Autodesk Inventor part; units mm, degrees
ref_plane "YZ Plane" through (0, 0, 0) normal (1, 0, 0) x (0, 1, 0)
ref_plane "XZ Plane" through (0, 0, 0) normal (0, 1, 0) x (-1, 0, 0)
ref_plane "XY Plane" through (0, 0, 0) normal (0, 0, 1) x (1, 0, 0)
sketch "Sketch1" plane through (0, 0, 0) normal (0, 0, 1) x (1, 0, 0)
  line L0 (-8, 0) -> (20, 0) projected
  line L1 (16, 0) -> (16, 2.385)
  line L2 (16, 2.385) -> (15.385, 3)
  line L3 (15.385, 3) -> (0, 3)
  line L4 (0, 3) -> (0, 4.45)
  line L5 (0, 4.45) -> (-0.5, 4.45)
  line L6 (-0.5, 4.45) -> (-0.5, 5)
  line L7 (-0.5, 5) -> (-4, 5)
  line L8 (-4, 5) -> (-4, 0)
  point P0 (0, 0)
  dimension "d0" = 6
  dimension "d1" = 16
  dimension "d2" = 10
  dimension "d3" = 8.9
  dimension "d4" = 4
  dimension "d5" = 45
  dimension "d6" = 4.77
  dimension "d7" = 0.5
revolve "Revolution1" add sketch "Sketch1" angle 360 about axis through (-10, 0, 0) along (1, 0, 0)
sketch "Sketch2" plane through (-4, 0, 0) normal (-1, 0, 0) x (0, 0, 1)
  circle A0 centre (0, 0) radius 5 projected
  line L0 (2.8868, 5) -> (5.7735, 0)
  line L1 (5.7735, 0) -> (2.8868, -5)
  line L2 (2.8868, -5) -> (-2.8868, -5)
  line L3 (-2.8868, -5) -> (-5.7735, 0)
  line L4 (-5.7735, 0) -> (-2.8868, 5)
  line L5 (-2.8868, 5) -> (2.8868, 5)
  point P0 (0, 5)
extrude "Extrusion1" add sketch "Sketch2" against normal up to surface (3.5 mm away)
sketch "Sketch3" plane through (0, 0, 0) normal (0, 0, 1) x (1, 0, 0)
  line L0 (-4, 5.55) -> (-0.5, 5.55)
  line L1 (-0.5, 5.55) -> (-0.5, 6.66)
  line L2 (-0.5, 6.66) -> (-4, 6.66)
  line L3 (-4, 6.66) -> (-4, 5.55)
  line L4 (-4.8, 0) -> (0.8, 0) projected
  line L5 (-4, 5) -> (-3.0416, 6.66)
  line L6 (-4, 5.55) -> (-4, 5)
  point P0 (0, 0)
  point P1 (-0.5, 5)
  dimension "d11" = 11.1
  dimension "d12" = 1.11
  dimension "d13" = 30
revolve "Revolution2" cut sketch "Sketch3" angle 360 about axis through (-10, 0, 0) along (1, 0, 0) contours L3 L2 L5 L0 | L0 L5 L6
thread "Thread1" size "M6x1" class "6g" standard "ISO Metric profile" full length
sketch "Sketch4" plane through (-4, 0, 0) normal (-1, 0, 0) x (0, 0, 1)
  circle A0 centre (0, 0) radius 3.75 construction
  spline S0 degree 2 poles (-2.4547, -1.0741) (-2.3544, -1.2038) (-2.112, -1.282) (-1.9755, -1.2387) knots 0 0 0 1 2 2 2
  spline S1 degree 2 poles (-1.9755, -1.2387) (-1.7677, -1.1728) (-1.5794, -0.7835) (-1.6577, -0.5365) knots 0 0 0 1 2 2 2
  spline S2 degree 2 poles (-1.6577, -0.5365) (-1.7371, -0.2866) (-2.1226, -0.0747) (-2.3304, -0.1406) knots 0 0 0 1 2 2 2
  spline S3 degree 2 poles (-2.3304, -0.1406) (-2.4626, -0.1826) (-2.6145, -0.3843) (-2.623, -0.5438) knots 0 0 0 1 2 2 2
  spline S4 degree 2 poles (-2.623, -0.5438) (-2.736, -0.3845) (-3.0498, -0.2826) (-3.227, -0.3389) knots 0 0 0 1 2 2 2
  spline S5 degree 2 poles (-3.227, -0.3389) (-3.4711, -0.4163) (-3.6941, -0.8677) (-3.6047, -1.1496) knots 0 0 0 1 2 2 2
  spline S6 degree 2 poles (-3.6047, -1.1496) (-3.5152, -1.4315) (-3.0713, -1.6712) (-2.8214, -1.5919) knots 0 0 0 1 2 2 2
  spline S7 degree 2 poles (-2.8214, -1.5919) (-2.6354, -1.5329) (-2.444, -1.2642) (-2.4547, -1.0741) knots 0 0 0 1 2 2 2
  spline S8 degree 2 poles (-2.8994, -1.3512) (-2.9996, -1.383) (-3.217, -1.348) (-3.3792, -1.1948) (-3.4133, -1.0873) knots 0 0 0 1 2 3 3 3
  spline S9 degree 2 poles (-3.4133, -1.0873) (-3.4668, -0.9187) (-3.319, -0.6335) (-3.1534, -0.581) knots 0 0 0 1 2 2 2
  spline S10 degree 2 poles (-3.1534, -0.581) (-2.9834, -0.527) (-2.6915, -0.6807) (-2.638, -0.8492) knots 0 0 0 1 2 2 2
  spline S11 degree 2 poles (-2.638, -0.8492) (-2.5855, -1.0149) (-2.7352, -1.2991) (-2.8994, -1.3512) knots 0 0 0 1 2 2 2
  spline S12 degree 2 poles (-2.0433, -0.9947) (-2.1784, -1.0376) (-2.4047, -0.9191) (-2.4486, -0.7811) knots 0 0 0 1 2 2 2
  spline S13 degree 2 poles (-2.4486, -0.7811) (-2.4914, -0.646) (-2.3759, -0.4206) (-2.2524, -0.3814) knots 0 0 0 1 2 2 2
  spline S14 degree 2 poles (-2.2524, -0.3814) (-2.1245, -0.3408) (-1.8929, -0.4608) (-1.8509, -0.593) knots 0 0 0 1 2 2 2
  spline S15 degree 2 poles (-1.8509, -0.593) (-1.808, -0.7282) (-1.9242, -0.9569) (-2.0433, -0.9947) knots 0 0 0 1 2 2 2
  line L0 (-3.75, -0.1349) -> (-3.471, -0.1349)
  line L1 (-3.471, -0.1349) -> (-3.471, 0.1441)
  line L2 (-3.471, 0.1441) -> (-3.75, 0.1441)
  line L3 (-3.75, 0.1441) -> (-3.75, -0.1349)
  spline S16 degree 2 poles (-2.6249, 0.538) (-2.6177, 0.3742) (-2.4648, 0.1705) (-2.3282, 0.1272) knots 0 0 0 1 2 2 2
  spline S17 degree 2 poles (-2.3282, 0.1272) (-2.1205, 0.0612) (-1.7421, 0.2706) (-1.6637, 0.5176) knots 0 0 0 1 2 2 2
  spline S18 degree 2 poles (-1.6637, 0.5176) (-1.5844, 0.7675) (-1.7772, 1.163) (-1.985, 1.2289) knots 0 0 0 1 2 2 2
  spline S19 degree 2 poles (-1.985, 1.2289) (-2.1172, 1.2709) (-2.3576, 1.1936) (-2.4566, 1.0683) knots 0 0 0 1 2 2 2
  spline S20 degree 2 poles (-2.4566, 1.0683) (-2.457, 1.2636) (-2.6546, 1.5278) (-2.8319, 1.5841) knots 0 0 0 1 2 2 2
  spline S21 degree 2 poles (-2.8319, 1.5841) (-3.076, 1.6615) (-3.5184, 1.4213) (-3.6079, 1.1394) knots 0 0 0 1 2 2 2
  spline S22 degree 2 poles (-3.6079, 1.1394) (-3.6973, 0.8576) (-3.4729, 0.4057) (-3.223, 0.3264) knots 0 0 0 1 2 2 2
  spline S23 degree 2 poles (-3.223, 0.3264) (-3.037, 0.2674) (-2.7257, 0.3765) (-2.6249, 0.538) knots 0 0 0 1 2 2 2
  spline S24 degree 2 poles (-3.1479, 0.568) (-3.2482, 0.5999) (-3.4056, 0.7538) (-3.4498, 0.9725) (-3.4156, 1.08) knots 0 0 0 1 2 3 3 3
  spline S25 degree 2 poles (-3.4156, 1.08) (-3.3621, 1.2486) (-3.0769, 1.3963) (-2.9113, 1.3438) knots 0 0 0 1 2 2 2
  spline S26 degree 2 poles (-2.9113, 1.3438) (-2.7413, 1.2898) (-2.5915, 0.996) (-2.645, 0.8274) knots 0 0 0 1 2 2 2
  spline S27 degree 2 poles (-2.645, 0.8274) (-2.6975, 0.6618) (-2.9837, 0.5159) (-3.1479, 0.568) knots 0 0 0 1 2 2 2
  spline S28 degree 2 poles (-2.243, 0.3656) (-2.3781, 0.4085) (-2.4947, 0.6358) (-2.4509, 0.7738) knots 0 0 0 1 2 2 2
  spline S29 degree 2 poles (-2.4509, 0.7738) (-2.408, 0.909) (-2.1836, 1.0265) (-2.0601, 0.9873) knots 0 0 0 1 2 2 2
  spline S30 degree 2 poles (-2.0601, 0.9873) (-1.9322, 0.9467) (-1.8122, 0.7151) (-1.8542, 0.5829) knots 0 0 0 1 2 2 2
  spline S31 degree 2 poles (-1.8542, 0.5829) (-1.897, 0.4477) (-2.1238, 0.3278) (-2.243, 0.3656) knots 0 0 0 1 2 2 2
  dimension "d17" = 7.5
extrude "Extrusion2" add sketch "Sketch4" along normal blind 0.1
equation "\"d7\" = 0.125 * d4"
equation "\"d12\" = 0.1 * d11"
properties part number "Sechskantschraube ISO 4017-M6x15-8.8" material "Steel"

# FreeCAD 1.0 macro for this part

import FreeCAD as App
import Part
import Sketcher
Q = App.Units.Quantity

doc = App.newDocument("Part")
body = doc.addObject("PartDesign::Body", "Body")

sketch1 = body.newObject("Sketcher::SketchObject", "Sketch")
sketch1.AttachmentSupport = (doc.getObject("XY_Plane"), [""])
sketch1.MapMode = "FlatFace"
sketch1.addGeometry(Part.LineSegment(App.Vector(-4, 5, 0), App.Vector(-4, 0, 0)), False)
sketch1.addGeometry(Part.LineSegment(App.Vector(-4, 0, 0), App.Vector(16, 0, 0)), False)
sketch1.addGeometry(Part.LineSegment(App.Vector(16, 0, 0), App.Vector(16, 2.4, 0)), False)
sketch1.addGeometry(Part.LineSegment(App.Vector(16, 2.4, 0), App.Vector(15.4, 3, 0)), False)
sketch1.addGeometry(Part.LineSegment(App.Vector(15.4, 3, 0), App.Vector(0, 3, 0)), False)
sketch1.addGeometry(Part.LineSegment(App.Vector(0, 3, 0), App.Vector(0, 4.5, 0)), False)
sketch1.addGeometry(Part.LineSegment(App.Vector(0, 4.5, 0), App.Vector(-0.5, 4.5, 0)), False)
sketch1.addGeometry(Part.LineSegment(App.Vector(-0.5, 4.5, 0), App.Vector(-0.5, 5, 0)), False)
sketch1.addGeometry(Part.LineSegment(App.Vector(-0.5, 5, 0), App.Vector(-4, 5, 0)), False)
sketch1.addConstraint(Sketcher.Constraint("Coincident", 0, 2, 1, 1))
sketch1.addConstraint(Sketcher.Constraint("Coincident", 1, 2, 2, 1))
sketch1.addConstraint(Sketcher.Constraint("Coincident", 2, 2, 3, 1))
sketch1.addConstraint(Sketcher.Constraint("Coincident", 3, 2, 4, 1))
sketch1.addConstraint(Sketcher.Constraint("Coincident", 4, 2, 5, 1))
sketch1.addConstraint(Sketcher.Constraint("Coincident", 5, 2, 6, 1))
sketch1.addConstraint(Sketcher.Constraint("Coincident", 6, 2, 7, 1))
sketch1.addConstraint(Sketcher.Constraint("Coincident", 7, 2, 8, 1))
sketch1.addConstraint(Sketcher.Constraint("Coincident", 8, 2, 0, 1))
sketch1.addConstraint(Sketcher.Constraint("Vertical", 0))
sketch1.addConstraint(Sketcher.Constraint("Horizontal", 1))
sketch1.addConstraint(Sketcher.Constraint("Vertical", 2))
sketch1.addConstraint(Sketcher.Constraint("Horizontal", 4))
sketch1.addConstraint(Sketcher.Constraint("Vertical", 5))
sketch1.addConstraint(Sketcher.Constraint("Horizontal", 6))
sketch1.addConstraint(Sketcher.Constraint("Vertical", 7))
sketch1.addConstraint(Sketcher.Constraint("Horizontal", 8))
sketch1.addConstraint(Sketcher.Constraint("PointOnObject", 0, 2, -1))
sketch1.addConstraint(Sketcher.Constraint("PointOnObject", 4, 2, -2))
sketch1.addConstraint(Sketcher.Constraint("DistanceX", 6, 2, 6, 1, Q("0.5 mm")))
sketch1.addConstraint(Sketcher.Constraint("DistanceX", 0, 2, -1, 1, Q("4 mm")))
sketch1.addConstraint(Sketcher.Constraint("DistanceX", -1, 1, 1, 2, Q("16 mm")))
sketch1.addConstraint(Sketcher.Constraint("DistanceY", 0, 2, 0, 1, Q("5 mm")))
sketch1.addConstraint(Sketcher.Constraint("Angle", 3, Q("135 deg")))
sketch1.addConstraint(Sketcher.Constraint("DistanceY", -1, 1, 3, 2, Q("3 mm")))
sketch1.addConstraint(Sketcher.Constraint("DistanceY", 5, 1, 5, 2, Q("1.45 mm")))
sketch1.addConstraint(Sketcher.Constraint("DistanceX", 4, 2, 4, 1, Q("15.385 mm")))
revolution = body.newObject("PartDesign::Revolution", "Revolution")
revolution.Profile = sketch1
revolution.ReferenceAxis = (sketch1, ["H_Axis"])
revolution.Angle = 360

sketch2 = body.newObject("Sketcher::SketchObject", "Sketch001")
sketch2.AttachmentSupport = (doc.getObject("YZ_Plane"), [""])
sketch2.MapMode = "FlatFace"
sketch2.AttachmentOffset = App.Placement(App.Vector(0, 0, -4), App.Rotation())
sketch2.addGeometry(Part.LineSegment(App.Vector(0, 6, 0), App.Vector(5, 3, 0)), False)
sketch2.addGeometry(Part.LineSegment(App.Vector(5, 3, 0), App.Vector(5, -3, 0)), False)
sketch2.addGeometry(Part.LineSegment(App.Vector(5, -3, 0), App.Vector(0, -6, 0)), False)
sketch2.addGeometry(Part.LineSegment(App.Vector(0, -6, 0), App.Vector(-5, -3, 0)), False)
sketch2.addGeometry(Part.LineSegment(App.Vector(-5, -3, 0), App.Vector(-5, 3, 0)), False)
sketch2.addGeometry(Part.LineSegment(App.Vector(-5, 3, 0), App.Vector(0, 6, 0)), False)
sketch2.addConstraint(Sketcher.Constraint("Coincident", 0, 2, 1, 1))
sketch2.addConstraint(Sketcher.Constraint("Coincident", 1, 2, 2, 1))
sketch2.addConstraint(Sketcher.Constraint("Coincident", 2, 2, 3, 1))
sketch2.addConstraint(Sketcher.Constraint("Coincident", 3, 2, 4, 1))
sketch2.addConstraint(Sketcher.Constraint("Coincident", 4, 2, 5, 1))
sketch2.addConstraint(Sketcher.Constraint("Coincident", 5, 2, 0, 1))
sketch2.addConstraint(Sketcher.Constraint("Vertical", 1))
sketch2.addConstraint(Sketcher.Constraint("Vertical", 4))
sketch2.addConstraint(Sketcher.Constraint("Symmetric", 0, 2, 3, 2, -1, 1))
sketch2.addConstraint(Sketcher.Constraint("Symmetric", 2, 2, 5, 2, -1, 1))
sketch2.addConstraint(Sketcher.Constraint("PointOnObject", 2, 2, -2))
sketch2.addConstraint(Sketcher.Constraint("Parallel", 2, 5))
sketch2.addConstraint(Sketcher.Constraint("Horizontal", 1, 2, 3, 2))
sketch2.addConstraint(Sketcher.Constraint("Angle", 0, Q("-29.9996 deg")))
sketch2.addConstraint(Sketcher.Constraint("DistanceX", -1, 1, 0, 2, Q("5 mm")))
sketch2.addConstraint(Sketcher.Constraint("DistanceY", 1, 2, 1, 1, Q("5.7736 mm")))
pad1 = body.newObject("PartDesign::Pad", "Pad")
pad1.Profile = sketch2
pad1.Length = 3.5

sketch3 = body.newObject("Sketcher::SketchObject", "Sketch002")
sketch3.AttachmentSupport = (doc.getObject("XY_Plane"), [""])
sketch3.MapMode = "FlatFace"
sketch3.addGeometry(Part.LineSegment(App.Vector(-4, 6.7, 0), App.Vector(-4, 5, 0)), False)
sketch3.addGeometry(Part.LineSegment(App.Vector(-4, 5, 0), App.Vector(-3, 6.7, 0)), False)
sketch3.addGeometry(Part.LineSegment(App.Vector(-3, 6.7, 0), App.Vector(-4, 6.7, 0)), False)
sketch3.addConstraint(Sketcher.Constraint("Coincident", 0, 2, 1, 1))
sketch3.addConstraint(Sketcher.Constraint("Coincident", 1, 2, 2, 1))
sketch3.addConstraint(Sketcher.Constraint("Coincident", 2, 2, 0, 1))
sketch3.addConstraint(Sketcher.Constraint("Vertical", 0))
sketch3.addConstraint(Sketcher.Constraint("Horizontal", 2))
sketch3.addConstraint(Sketcher.Constraint("Angle", 1, Q("60 deg")))
sketch3.addConstraint(Sketcher.Constraint("DistanceX", 0, 2, -1, 1, Q("4 mm")))
sketch3.addConstraint(Sketcher.Constraint("DistanceY", -1, 1, 0, 2, Q("5 mm")))
sketch3.addConstraint(Sketcher.Constraint("DistanceY", 0, 2, 0, 1, Q("1.66 mm")))
groove = body.newObject("PartDesign::Groove", "Groove")
groove.Profile = sketch3
groove.ReferenceAxis = (sketch3, ["H_Axis"])
groove.Angle = 360

sketch4 = body.newObject("Sketcher::SketchObject", "Sketch003")
sketch4.AttachmentSupport = (doc.getObject("YZ_Plane"), [""])
sketch4.MapMode = "FlatFace"
sketch4.AttachmentOffset = App.Placement(App.Vector(0, 0, -4), App.Rotation())
sketch4.addGeometry(Part.BSplineCurve([App.Vector(-1.5919, -2.8214, 0), App.Vector(-1.5329, -2.6354, 0), App.Vector(-1.2642, -2.444, 0), App.Vector(-1.0741, -2.4547, 0)], [3, 1, 3], [0, 1, 2], False, 2, [1, 1, 1, 1], False), False)
sketch4.addGeometry(Part.BSplineCurve([App.Vector(-1.0741, -2.4547, 0), App.Vector(-1.2038, -2.3544, 0), App.Vector(-1.282, -2.112, 0), App.Vector(-1.2387, -1.9755, 0)], [3, 1, 3], [0, 1, 2], False, 2, [1, 1, 1, 1], False), False)
sketch4.addGeometry(Part.BSplineCurve([App.Vector(-1.2387, -1.9755, 0), App.Vector(-1.1728, -1.7677, 0), App.Vector(-0.7835, -1.5794, 0), App.Vector(-0.5365, -1.6577, 0)], [3, 1, 3], [0, 1, 2], False, 2, [1, 1, 1, 1], False), False)
sketch4.addGeometry(Part.BSplineCurve([App.Vector(-0.5365, -1.6577, 0), App.Vector(-0.2866, -1.7371, 0), App.Vector(-0.0747, -2.1226, 0), App.Vector(-0.1406, -2.3304, 0)], [3, 1, 3], [0, 1, 2], False, 2, [1, 1, 1, 1], False), False)
sketch4.addGeometry(Part.BSplineCurve([App.Vector(-0.1406, -2.3304, 0), App.Vector(-0.1826, -2.4626, 0), App.Vector(-0.3843, -2.6145, 0), App.Vector(-0.5438, -2.623, 0)], [3, 1, 3], [0, 1, 2], False, 2, [1, 1, 1, 1], False), False)
sketch4.addGeometry(Part.BSplineCurve([App.Vector(-0.5438, -2.623, 0), App.Vector(-0.3845, -2.736, 0), App.Vector(-0.2826, -3.0498, 0), App.Vector(-0.3389, -3.227, 0)], [3, 1, 3], [0, 1, 2], False, 2, [1, 1, 1, 1], False), False)
sketch4.addGeometry(Part.BSplineCurve([App.Vector(-0.3389, -3.227, 0), App.Vector(-0.4163, -3.4711, 0), App.Vector(-0.8677, -3.6941, 0), App.Vector(-1.1496, -3.6047, 0)], [3, 1, 3], [0, 1, 2], False, 2, [1, 1, 1, 1], False), False)
sketch4.addGeometry(Part.BSplineCurve([App.Vector(-1.1496, -3.6047, 0), App.Vector(-1.4315, -3.5152, 0), App.Vector(-1.6712, -3.0713, 0), App.Vector(-1.5919, -2.8214, 0)], [3, 1, 3], [0, 1, 2], False, 2, [1, 1, 1, 1], False), False)
sketch4.addGeometry(Part.BSplineCurve([App.Vector(-0.8492, -2.638, 0), App.Vector(-1.0149, -2.5855, 0), App.Vector(-1.2991, -2.7352, 0), App.Vector(-1.3512, -2.8994, 0)], [3, 1, 3], [0, 1, 2], False, 2, [1, 1, 1, 1], False), False)
sketch4.addGeometry(Part.BSplineCurve([App.Vector(-1.3512, -2.8994, 0), App.Vector(-1.383, -2.9996, 0), App.Vector(-1.348, -3.217, 0), App.Vector(-1.1948, -3.3792, 0), App.Vector(-1.0873, -3.4133, 0)], [3, 1, 1, 3], [0, 1, 2, 3], False, 2, [1, 1, 1, 1, 1], False), False)
sketch4.addGeometry(Part.BSplineCurve([App.Vector(-1.0873, -3.4133, 0), App.Vector(-0.9187, -3.4668, 0), App.Vector(-0.6335, -3.319, 0), App.Vector(-0.581, -3.1534, 0)], [3, 1, 3], [0, 1, 2], False, 2, [1, 1, 1, 1], False), False)
sketch4.addGeometry(Part.BSplineCurve([App.Vector(-0.581, -3.1534, 0), App.Vector(-0.527, -2.9834, 0), App.Vector(-0.6807, -2.6915, 0), App.Vector(-0.8492, -2.638, 0)], [3, 1, 3], [0, 1, 2], False, 2, [1, 1, 1, 1], False), False)
sketch4.addGeometry(Part.BSplineCurve([App.Vector(-0.593, -1.8509, 0), App.Vector(-0.7282, -1.808, 0), App.Vector(-0.9569, -1.9242, 0), App.Vector(-0.9947, -2.0433, 0)], [3, 1, 3], [0, 1, 2], False, 2, [1, 1, 1, 1], False), False)
sketch4.addGeometry(Part.BSplineCurve([App.Vector(-0.9947, -2.0433, 0), App.Vector(-1.0376, -2.1784, 0), App.Vector(-0.9191, -2.4047, 0), App.Vector(-0.7811, -2.4486, 0)], [3, 1, 3], [0, 1, 2], False, 2, [1, 1, 1, 1], False), False)
sketch4.addGeometry(Part.BSplineCurve([App.Vector(-0.7811, -2.4486, 0), App.Vector(-0.646, -2.4914, 0), App.Vector(-0.4206, -2.3759, 0), App.Vector(-0.3814, -2.2524, 0)], [3, 1, 3], [0, 1, 2], False, 2, [1, 1, 1, 1], False), False)
sketch4.addGeometry(Part.BSplineCurve([App.Vector(-0.3814, -2.2524, 0), App.Vector(-0.3408, -2.1245, 0), App.Vector(-0.4608, -1.8929, 0), App.Vector(-0.593, -1.8509, 0)], [3, 1, 3], [0, 1, 2], False, 2, [1, 1, 1, 1], False), False)
sketch4.addGeometry(Part.LineSegment(App.Vector(0.1441, -3.75, 0), App.Vector(-0.1349, -3.75, 0)), False)
sketch4.addGeometry(Part.LineSegment(App.Vector(-0.1349, -3.75, 0), App.Vector(-0.1349, -3.471, 0)), False)
sketch4.addGeometry(Part.LineSegment(App.Vector(-0.1349, -3.471, 0), App.Vector(0.1441, -3.471, 0)), False)
sketch4.addGeometry(Part.LineSegment(App.Vector(0.1441, -3.471, 0), App.Vector(0.1441, -3.75, 0)), False)
sketch4.addGeometry(Part.BSplineCurve([App.Vector(0.3264, -3.223, 0), App.Vector(0.2674, -3.037, 0), App.Vector(0.3765, -2.7257, 0), App.Vector(0.538, -2.6249, 0)], [3, 1, 3], [0, 1, 2], False, 2, [1, 1, 1, 1], False), False)
sketch4.addGeometry(Part.BSplineCurve([App.Vector(0.538, -2.6249, 0), App.Vector(0.3742, -2.6177, 0), App.Vector(0.1705, -2.4648, 0), App.Vector(0.1272, -2.3282, 0)], [3, 1, 3], [0, 1, 2], False, 2, [1, 1, 1, 1], False), False)
sketch4.addGeometry(Part.BSplineCurve([App.Vector(0.1272, -2.3282, 0), App.Vector(0.0612, -2.1205, 0), App.Vector(0.2706, -1.7421, 0), App.Vector(0.5176, -1.6637, 0)], [3, 1, 3], [0, 1, 2], False, 2, [1, 1, 1, 1], False), False)
sketch4.addGeometry(Part.BSplineCurve([App.Vector(0.5176, -1.6637, 0), App.Vector(0.7675, -1.5844, 0), App.Vector(1.163, -1.7772, 0), App.Vector(1.2289, -1.985, 0)], [3, 1, 3], [0, 1, 2], False, 2, [1, 1, 1, 1], False), False)
sketch4.addGeometry(Part.BSplineCurve([App.Vector(1.2289, -1.985, 0), App.Vector(1.2709, -2.1172, 0), App.Vector(1.1936, -2.3576, 0), App.Vector(1.0683, -2.4566, 0)], [3, 1, 3], [0, 1, 2], False, 2, [1, 1, 1, 1], False), False)
sketch4.addGeometry(Part.BSplineCurve([App.Vector(1.0683, -2.4566, 0), App.Vector(1.2636, -2.457, 0), App.Vector(1.5278, -2.6546, 0), App.Vector(1.5841, -2.8319, 0)], [3, 1, 3], [0, 1, 2], False, 2, [1, 1, 1, 1], False), False)
sketch4.addGeometry(Part.BSplineCurve([App.Vector(1.5841, -2.8319, 0), App.Vector(1.6615, -3.076, 0), App.Vector(1.4213, -3.5184, 0), App.Vector(1.1394, -3.6079, 0)], [3, 1, 3], [0, 1, 2], False, 2, [1, 1, 1, 1], False), False)
sketch4.addGeometry(Part.BSplineCurve([App.Vector(1.1394, -3.6079, 0), App.Vector(0.8576, -3.6973, 0), App.Vector(0.4057, -3.4729, 0), App.Vector(0.3264, -3.223, 0)], [3, 1, 3], [0, 1, 2], False, 2, [1, 1, 1, 1], False), False)
sketch4.addGeometry(Part.BSplineCurve([App.Vector(0.8274, -2.645, 0), App.Vector(0.6618, -2.6975, 0), App.Vector(0.5159, -2.9837, 0), App.Vector(0.568, -3.1479, 0)], [3, 1, 3], [0, 1, 2], False, 2, [1, 1, 1, 1], False), False)
sketch4.addGeometry(Part.BSplineCurve([App.Vector(0.568, -3.1479, 0), App.Vector(0.5999, -3.2482, 0), App.Vector(0.7538, -3.4056, 0), App.Vector(0.9725, -3.4498, 0), App.Vector(1.08, -3.4156, 0)], [3, 1, 1, 3], [0, 1, 2, 3], False, 2, [1, 1, 1, 1, 1], False), False)
sketch4.addGeometry(Part.BSplineCurve([App.Vector(1.08, -3.4156, 0), App.Vector(1.2486, -3.3621, 0), App.Vector(1.3963, -3.0769, 0), App.Vector(1.3438, -2.9113, 0)], [3, 1, 3], [0, 1, 2], False, 2, [1, 1, 1, 1], False), False)
sketch4.addGeometry(Part.BSplineCurve([App.Vector(1.3438, -2.9113, 0), App.Vector(1.2898, -2.7413, 0), App.Vector(0.996, -2.5915, 0), App.Vector(0.8274, -2.645, 0)], [3, 1, 3], [0, 1, 2], False, 2, [1, 1, 1, 1], False), False)
sketch4.addGeometry(Part.BSplineCurve([App.Vector(0.5829, -1.8542, 0), App.Vector(0.4477, -1.897, 0), App.Vector(0.3278, -2.1238, 0), App.Vector(0.3656, -2.243, 0)], [3, 1, 3], [0, 1, 2], False, 2, [1, 1, 1, 1], False), False)
sketch4.addGeometry(Part.BSplineCurve([App.Vector(0.3656, -2.243, 0), App.Vector(0.4085, -2.3781, 0), App.Vector(0.6358, -2.4947, 0), App.Vector(0.7738, -2.4509, 0)], [3, 1, 3], [0, 1, 2], False, 2, [1, 1, 1, 1], False), False)
sketch4.addGeometry(Part.BSplineCurve([App.Vector(0.7738, -2.4509, 0), App.Vector(0.909, -2.408, 0), App.Vector(1.0265, -2.1836, 0), App.Vector(0.9873, -2.0601, 0)], [3, 1, 3], [0, 1, 2], False, 2, [1, 1, 1, 1], False), False)
sketch4.addGeometry(Part.BSplineCurve([App.Vector(0.9873, -2.0601, 0), App.Vector(0.9467, -1.9322, 0), App.Vector(0.7151, -1.8122, 0), App.Vector(0.5829, -1.8542, 0)], [3, 1, 3], [0, 1, 2], False, 2, [1, 1, 1, 1], False), False)
sketch4.addConstraint(Sketcher.Constraint("Block", 0))
sketch4.addConstraint(Sketcher.Constraint("Block", 1))
sketch4.addConstraint(Sketcher.Constraint("Block", 2))
sketch4.addConstraint(Sketcher.Constraint("Block", 3))
sketch4.addConstraint(Sketcher.Constraint("Block", 4))
sketch4.addConstraint(Sketcher.Constraint("Block", 5))
sketch4.addConstraint(Sketcher.Constraint("Block", 6))
sketch4.addConstraint(Sketcher.Constraint("Block", 7))
sketch4.addConstraint(Sketcher.Constraint("Block", 8))
sketch4.addConstraint(Sketcher.Constraint("Block", 9))
sketch4.addConstraint(Sketcher.Constraint("Block", 10))
sketch4.addConstraint(Sketcher.Constraint("Block", 11))
sketch4.addConstraint(Sketcher.Constraint("Block", 12))
sketch4.addConstraint(Sketcher.Constraint("Block", 13))
sketch4.addConstraint(Sketcher.Constraint("Block", 14))
sketch4.addConstraint(Sketcher.Constraint("Block", 15))
sketch4.addConstraint(Sketcher.Constraint("Block", 20))
sketch4.addConstraint(Sketcher.Constraint("Block", 21))
sketch4.addConstraint(Sketcher.Constraint("Block", 22))
sketch4.addConstraint(Sketcher.Constraint("Block", 23))
sketch4.addConstraint(Sketcher.Constraint("Block", 24))
sketch4.addConstraint(Sketcher.Constraint("Block", 25))
sketch4.addConstraint(Sketcher.Constraint("Block", 26))
sketch4.addConstraint(Sketcher.Constraint("Block", 27))
sketch4.addConstraint(Sketcher.Constraint("Block", 28))
sketch4.addConstraint(Sketcher.Constraint("Block", 29))
sketch4.addConstraint(Sketcher.Constraint("Block", 30))
sketch4.addConstraint(Sketcher.Constraint("Block", 31))
sketch4.addConstraint(Sketcher.Constraint("Block", 32))
sketch4.addConstraint(Sketcher.Constraint("Block", 33))
sketch4.addConstraint(Sketcher.Constraint("Block", 34))
sketch4.addConstraint(Sketcher.Constraint("Block", 35))
sketch4.addConstraint(Sketcher.Constraint("Coincident", 16, 2, 17, 1))
sketch4.addConstraint(Sketcher.Constraint("Coincident", 17, 2, 18, 1))
sketch4.addConstraint(Sketcher.Constraint("Coincident", 18, 2, 19, 1))
sketch4.addConstraint(Sketcher.Constraint("Coincident", 19, 2, 16, 1))
sketch4.addConstraint(Sketcher.Constraint("Horizontal", 16))
sketch4.addConstraint(Sketcher.Constraint("Vertical", 17))
sketch4.addConstraint(Sketcher.Constraint("Horizontal", 18))
sketch4.addConstraint(Sketcher.Constraint("Vertical", 19))
sketch4.addConstraint(Sketcher.Constraint("Equal", 18, 17))
sketch4.addConstraint(Sketcher.Constraint("DistanceX", 16, 2, 16, 1, Q("0.279 mm")))
sketch4.addConstraint(Sketcher.Constraint("DistanceY", 16, 2, -1, 1, Q("3.75 mm")))
sketch4.addConstraint(Sketcher.Constraint("DistanceX", 16, 2, -1, 1, Q("0.135 mm")))
pad2 = body.newObject("PartDesign::Pad", "Pad001")
pad2.Profile = sketch4
pad2.Length = 0.1
pad2.Reversed = True

doc.recompute()
